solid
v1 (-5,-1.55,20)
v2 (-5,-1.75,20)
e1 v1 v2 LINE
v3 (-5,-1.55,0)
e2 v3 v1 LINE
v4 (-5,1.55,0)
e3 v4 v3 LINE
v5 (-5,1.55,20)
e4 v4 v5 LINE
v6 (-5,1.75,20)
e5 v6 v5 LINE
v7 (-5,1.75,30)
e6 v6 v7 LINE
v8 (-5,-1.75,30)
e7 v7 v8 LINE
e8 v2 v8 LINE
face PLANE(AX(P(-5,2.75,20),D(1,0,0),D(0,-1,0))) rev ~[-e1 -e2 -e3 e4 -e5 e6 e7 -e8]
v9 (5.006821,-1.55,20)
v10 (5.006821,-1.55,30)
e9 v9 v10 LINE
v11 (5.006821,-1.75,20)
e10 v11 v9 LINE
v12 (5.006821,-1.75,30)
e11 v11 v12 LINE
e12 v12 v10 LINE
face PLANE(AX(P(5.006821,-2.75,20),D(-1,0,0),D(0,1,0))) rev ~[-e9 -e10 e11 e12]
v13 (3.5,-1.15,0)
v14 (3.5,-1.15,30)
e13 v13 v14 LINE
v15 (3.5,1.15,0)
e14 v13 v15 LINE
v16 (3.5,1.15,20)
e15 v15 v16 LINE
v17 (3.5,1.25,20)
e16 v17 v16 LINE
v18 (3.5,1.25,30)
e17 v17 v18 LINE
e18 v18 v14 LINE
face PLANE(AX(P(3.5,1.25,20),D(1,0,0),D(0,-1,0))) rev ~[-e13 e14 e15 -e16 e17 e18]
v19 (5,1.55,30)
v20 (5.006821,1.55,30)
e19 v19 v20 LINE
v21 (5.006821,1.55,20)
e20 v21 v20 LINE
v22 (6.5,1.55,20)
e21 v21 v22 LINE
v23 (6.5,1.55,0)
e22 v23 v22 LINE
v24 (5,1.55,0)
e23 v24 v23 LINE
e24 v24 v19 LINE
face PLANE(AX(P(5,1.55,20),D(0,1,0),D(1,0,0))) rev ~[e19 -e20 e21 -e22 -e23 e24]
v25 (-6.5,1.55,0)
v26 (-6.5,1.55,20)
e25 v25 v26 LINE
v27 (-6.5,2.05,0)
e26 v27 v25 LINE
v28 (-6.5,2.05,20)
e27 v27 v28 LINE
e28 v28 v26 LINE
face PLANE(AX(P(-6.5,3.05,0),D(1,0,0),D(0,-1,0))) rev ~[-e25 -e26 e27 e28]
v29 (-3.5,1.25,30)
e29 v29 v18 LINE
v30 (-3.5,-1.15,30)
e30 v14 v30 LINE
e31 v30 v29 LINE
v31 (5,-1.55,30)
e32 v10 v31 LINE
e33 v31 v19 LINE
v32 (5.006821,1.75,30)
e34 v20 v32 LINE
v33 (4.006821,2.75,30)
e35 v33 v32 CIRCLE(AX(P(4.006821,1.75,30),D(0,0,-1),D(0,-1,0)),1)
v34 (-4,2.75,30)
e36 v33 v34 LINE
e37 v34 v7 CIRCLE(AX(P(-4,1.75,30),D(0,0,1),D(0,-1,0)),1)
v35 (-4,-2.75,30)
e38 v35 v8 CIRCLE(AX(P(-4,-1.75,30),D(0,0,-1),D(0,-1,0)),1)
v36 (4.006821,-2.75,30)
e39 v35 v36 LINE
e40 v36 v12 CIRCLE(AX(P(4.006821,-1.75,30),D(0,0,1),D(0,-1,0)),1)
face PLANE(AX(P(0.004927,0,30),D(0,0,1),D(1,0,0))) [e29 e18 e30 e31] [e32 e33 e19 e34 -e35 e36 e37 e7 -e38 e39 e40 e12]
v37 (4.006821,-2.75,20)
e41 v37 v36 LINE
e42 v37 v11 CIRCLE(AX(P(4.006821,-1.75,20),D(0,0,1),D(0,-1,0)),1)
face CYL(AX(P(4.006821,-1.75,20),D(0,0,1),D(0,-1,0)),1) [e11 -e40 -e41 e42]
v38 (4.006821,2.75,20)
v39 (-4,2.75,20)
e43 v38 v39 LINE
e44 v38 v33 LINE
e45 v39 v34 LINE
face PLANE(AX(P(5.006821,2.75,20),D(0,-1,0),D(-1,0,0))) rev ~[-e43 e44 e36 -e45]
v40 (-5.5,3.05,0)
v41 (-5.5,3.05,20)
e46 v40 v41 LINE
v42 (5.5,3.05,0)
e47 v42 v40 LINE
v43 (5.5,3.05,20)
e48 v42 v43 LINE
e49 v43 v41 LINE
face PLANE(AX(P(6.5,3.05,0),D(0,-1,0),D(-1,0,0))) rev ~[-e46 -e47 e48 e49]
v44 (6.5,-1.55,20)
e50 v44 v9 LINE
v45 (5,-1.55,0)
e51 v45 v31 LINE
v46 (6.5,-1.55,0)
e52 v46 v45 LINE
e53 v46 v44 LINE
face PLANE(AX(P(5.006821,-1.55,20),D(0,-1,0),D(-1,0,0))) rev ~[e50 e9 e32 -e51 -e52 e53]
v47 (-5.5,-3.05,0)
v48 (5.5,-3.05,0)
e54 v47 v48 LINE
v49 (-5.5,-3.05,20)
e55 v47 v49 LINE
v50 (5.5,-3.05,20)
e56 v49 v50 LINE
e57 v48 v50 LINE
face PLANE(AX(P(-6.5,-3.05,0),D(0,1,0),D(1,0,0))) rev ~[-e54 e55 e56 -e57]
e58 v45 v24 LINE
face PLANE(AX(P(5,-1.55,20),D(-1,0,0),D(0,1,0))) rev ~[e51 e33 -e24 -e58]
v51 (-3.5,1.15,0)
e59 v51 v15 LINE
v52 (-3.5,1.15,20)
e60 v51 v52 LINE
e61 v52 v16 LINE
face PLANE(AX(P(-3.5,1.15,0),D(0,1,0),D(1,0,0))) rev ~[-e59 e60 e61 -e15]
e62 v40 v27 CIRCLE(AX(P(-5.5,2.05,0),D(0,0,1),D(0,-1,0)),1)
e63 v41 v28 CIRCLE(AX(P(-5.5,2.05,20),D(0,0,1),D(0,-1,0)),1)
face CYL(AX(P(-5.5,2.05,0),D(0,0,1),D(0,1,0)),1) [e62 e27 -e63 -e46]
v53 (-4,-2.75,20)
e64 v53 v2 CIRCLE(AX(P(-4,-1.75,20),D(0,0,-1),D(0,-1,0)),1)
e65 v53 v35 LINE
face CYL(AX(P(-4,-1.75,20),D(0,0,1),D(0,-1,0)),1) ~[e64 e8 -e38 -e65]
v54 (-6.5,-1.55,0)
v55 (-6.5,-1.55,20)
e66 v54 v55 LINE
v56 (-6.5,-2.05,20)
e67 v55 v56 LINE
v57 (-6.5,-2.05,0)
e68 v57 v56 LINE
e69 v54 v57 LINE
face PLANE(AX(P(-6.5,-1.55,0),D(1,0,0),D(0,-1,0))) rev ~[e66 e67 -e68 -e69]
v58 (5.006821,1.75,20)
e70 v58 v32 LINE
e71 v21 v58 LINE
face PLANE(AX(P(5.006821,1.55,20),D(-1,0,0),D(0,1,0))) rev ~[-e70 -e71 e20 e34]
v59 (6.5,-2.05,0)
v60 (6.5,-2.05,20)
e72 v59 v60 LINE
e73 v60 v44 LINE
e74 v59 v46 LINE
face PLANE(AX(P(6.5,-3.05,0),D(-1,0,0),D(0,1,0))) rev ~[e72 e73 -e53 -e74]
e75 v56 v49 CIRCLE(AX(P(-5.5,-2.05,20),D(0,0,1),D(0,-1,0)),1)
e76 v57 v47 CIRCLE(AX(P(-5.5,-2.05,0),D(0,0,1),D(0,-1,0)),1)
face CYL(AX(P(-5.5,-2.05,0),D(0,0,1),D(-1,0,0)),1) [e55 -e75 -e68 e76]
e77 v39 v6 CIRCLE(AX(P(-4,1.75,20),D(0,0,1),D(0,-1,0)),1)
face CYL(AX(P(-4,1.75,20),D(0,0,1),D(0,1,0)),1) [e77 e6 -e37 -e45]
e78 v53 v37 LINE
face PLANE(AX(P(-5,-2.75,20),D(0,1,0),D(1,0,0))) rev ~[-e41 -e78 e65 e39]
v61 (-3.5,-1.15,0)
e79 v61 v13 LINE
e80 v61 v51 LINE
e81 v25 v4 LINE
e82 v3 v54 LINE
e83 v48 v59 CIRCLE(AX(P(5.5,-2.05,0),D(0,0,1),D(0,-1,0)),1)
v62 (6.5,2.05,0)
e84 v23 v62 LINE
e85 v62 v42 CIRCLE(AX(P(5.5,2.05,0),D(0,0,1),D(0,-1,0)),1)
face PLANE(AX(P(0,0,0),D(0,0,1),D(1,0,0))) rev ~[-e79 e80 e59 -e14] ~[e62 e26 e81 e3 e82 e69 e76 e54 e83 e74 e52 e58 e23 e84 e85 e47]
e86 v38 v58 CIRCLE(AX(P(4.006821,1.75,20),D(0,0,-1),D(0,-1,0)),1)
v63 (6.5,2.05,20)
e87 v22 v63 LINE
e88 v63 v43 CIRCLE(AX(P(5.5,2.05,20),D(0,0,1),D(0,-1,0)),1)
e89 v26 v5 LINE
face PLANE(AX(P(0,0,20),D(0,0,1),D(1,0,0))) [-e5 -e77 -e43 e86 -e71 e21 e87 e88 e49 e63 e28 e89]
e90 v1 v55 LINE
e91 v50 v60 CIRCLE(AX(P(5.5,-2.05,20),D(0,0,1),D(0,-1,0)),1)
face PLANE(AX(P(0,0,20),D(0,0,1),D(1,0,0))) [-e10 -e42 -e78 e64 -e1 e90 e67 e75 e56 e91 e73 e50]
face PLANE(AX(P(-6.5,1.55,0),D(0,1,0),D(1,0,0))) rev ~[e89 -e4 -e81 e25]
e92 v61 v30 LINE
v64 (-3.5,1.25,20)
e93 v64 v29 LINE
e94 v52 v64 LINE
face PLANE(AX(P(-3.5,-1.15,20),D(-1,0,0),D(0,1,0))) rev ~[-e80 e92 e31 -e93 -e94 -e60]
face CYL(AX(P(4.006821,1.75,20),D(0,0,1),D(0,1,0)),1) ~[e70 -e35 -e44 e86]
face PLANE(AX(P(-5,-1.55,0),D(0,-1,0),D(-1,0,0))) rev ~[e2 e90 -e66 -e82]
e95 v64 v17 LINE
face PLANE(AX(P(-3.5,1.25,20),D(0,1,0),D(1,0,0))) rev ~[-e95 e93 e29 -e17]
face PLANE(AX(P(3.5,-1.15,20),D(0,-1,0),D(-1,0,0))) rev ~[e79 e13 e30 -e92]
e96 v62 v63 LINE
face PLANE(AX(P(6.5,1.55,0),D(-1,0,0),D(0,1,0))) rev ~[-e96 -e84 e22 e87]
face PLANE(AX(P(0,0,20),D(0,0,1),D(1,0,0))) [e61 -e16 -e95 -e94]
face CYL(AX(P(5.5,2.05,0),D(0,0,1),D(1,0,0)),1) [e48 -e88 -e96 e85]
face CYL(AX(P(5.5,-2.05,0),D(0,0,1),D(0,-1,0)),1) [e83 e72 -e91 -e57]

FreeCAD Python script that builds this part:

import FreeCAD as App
import Part
import Sketcher


def edges_at(feature, points):
    """Names of the edges that pass closest to the given points."""
    edges = feature.Shape.Edges
    near = lambda p: min(range(len(edges)), key=lambda i: edges[i].distToShape(Part.Vertex(*p))[0])
    return sorted({f"Edge{near(p) + 1}" for p in points})

doc = App.newDocument("Part")
params = doc.addObject("Spreadsheet::Sheet", "Params")
for row, (alias, value) in enumerate([
    ("sketch1_width", "13 mm"),
    ("sketch1_width2", "7 mm"),
    ("sketch1_width3", "1.5 mm"),
    ("sketch1_height", "3.1 mm"),
    ("sketch1_height2", "2.3 mm"),
    ("pad1_length", "20 mm"),
    ("sketch2_width", "7 mm"),
    ("sketch2_height", "1.2 mm"),
    ("sketch2_height2", "3.1 mm"),
    ("sketch2_height3", "2.4 mm"),
    ("pad2_length", "10 mm"),
    ("fillet_radius", "1 mm"),
    ("fillet2_radius", "1 mm"),
], start=1):
    params.set(f"A{row}", alias)
    params.set(f"B{row}", "=" + value)
    params.setAlias(f"B{row}", alias)

body = doc.addObject("PartDesign::Body", "Body")

# Sketch on XY plane
sketch1 = doc.addObject("Sketcher::SketchObject", "Sketch")
body.addObject(sketch1)
sketch1.AttachmentSupport = (doc.XY_Plane, [""])
sketch1.MapMode = "FlatFace"
sketch1.addGeometry([
    Part.LineSegment(App.Vector(6.5, 3, 0), App.Vector(-6.5, 3, 0)),  # 0
    Part.LineSegment(App.Vector(-6.5, 3, 0), App.Vector(-6.5, 1.6, 0)),  # 1
    Part.LineSegment(App.Vector(-6.5, 1.6, 0), App.Vector(-5, 1.6, 0)),  # 2
    Part.LineSegment(App.Vector(-5, 1.6, 0), App.Vector(-5, -1.6, 0)),  # 3
    Part.LineSegment(App.Vector(-5, -1.6, 0), App.Vector(-6.5, -1.6, 0)),  # 4
    Part.LineSegment(App.Vector(-6.5, -1.6, 0), App.Vector(-6.5, -3, 0)),  # 5
    Part.LineSegment(App.Vector(-6.5, -3, 0), App.Vector(6.5, -3, 0)),  # 6
    Part.LineSegment(App.Vector(6.5, -3, 0), App.Vector(6.5, -1.6, 0)),  # 7
    Part.LineSegment(App.Vector(6.5, -1.6, 0), App.Vector(5, -1.6, 0)),  # 8
    Part.LineSegment(App.Vector(5, -1.6, 0), App.Vector(5, 1.6, 0)),  # 9
    Part.LineSegment(App.Vector(5, 1.6, 0), App.Vector(6.5, 1.6, 0)),  # 10
    Part.LineSegment(App.Vector(6.5, 1.6, 0), App.Vector(6.5, 3, 0)),  # 11
    Part.LineSegment(App.Vector(3.5, -1.1, 0), App.Vector(-3.5, -1.1, 0)),  # 12
    Part.LineSegment(App.Vector(-3.5, -1.1, 0), App.Vector(-3.5, 1.1, 0)),  # 13
    Part.LineSegment(App.Vector(-3.5, 1.1, 0), App.Vector(3.5, 1.1, 0)),  # 14
    Part.LineSegment(App.Vector(3.5, 1.1, 0), App.Vector(3.5, -1.1, 0)),  # 15
], False)
sketch1.addConstraint([
    Sketcher.Constraint("Coincident", 0, 2, 1, 1),
    Sketcher.Constraint("Coincident", 1, 2, 2, 1),
    Sketcher.Constraint("Coincident", 2, 2, 3, 1),
    Sketcher.Constraint("Coincident", 3, 2, 4, 1),
    Sketcher.Constraint("Coincident", 4, 2, 5, 1),
    Sketcher.Constraint("Coincident", 5, 2, 6, 1),
    Sketcher.Constraint("Coincident", 6, 2, 7, 1),
    Sketcher.Constraint("Coincident", 7, 2, 8, 1),
    Sketcher.Constraint("Coincident", 8, 2, 9, 1),
    Sketcher.Constraint("Coincident", 9, 2, 10, 1),
    Sketcher.Constraint("Coincident", 10, 2, 11, 1),
    Sketcher.Constraint("Coincident", 11, 2, 0, 1),
    Sketcher.Constraint("Coincident", 12, 2, 13, 1),
    Sketcher.Constraint("Coincident", 13, 2, 14, 1),
    Sketcher.Constraint("Coincident", 14, 2, 15, 1),
    Sketcher.Constraint("Coincident", 15, 2, 12, 1),
    Sketcher.Constraint("Horizontal", 0),
    Sketcher.Constraint("Vertical", 1),
    Sketcher.Constraint("Horizontal", 2),
    Sketcher.Constraint("Vertical", 3),
    Sketcher.Constraint("Horizontal", 4),
    Sketcher.Constraint("Vertical", 5),
    Sketcher.Constraint("Horizontal", 6),
    Sketcher.Constraint("Vertical", 7),
    Sketcher.Constraint("Horizontal", 8),
    Sketcher.Constraint("Vertical", 9),
    Sketcher.Constraint("Horizontal", 10),
    Sketcher.Constraint("Vertical", 11),
    Sketcher.Constraint("Horizontal", 12),
    Sketcher.Constraint("Vertical", 13),
    Sketcher.Constraint("Horizontal", 14),
    Sketcher.Constraint("Vertical", 15),
    Sketcher.Constraint("Symmetric", 0, 2, 6, 2, -1, 1),
    Sketcher.Constraint("Symmetric", 2, 2, 8, 2, -1, 1),
    Sketcher.Constraint("Symmetric", 4, 2, 10, 2, -1, 1),
    Sketcher.Constraint("Symmetric", 12, 2, 14, 2, -1, 1),
    Sketcher.Constraint("Symmetric", 4, 2, 7, 2, -2),
    Sketcher.Constraint("Equal", 10, 1),
    Sketcher.Constraint("DistanceX", 0, 2, 0, 1, 13.0),
    Sketcher.Constraint("DistanceX", 12, 2, 12, 1, 7.0),
    Sketcher.Constraint("DistanceX", 2, 1, 2, 2, 1.5),
    Sketcher.Constraint("DistanceY", 3, 2, 3, 1, 3.1),
    Sketcher.Constraint("DistanceY", 13, 1, 13, 2, 2.3),
])
sketch1.setExpression("Constraints[38]", "Params.sketch1_width")
sketch1.setExpression("Constraints[39]", "Params.sketch1_width2")
sketch1.setExpression("Constraints[40]", "Params.sketch1_width3")
sketch1.setExpression("Constraints[41]", "Params.sketch1_height")
sketch1.setExpression("Constraints[42]", "Params.sketch1_height2")
pad1 = doc.addObject("PartDesign::Pad", "Pad")
body.addObject(pad1)
pad1.Profile = sketch1
pad1.setExpression("Length", "Params.pad1_length")

# Sketch on XY plane
sketch2 = doc.addObject("Sketcher::SketchObject", "Sketch001")
body.addObject(sketch2)
sketch2.AttachmentSupport = (doc.XY_Plane, [""])
sketch2.MapMode = "FlatFace"
sketch2.AttachmentOffset = App.Placement(App.Vector(0, 0, 20), App.Rotation())
sketch2.addGeometry([
    Part.LineSegment(App.Vector(-5, -2.75, 0), App.Vector(5.007, -2.75, 0)),  # 0
    Part.LineSegment(App.Vector(5.007, -2.75, 0), App.Vector(5.007, -1.55, 0)),  # 1
    Part.LineSegment(App.Vector(5.007, -1.55, 0), App.Vector(5, -1.55, 0)),  # 2
    Part.LineSegment(App.Vector(5, -1.55, 0), App.Vector(5, 1.55, 0)),  # 3
    Part.LineSegment(App.Vector(5, 1.55, 0), App.Vector(5.007, 1.55, 0)),  # 4
    Part.LineSegment(App.Vector(5.007, 1.55, 0), App.Vector(5.007, 2.75, 0)),  # 5
    Part.LineSegment(App.Vector(5.007, 2.75, 0), App.Vector(-5, 2.75, 0)),  # 6
    Part.LineSegment(App.Vector(-5, 2.75, 0), App.Vector(-5, -2.75, 0)),  # 7
    Part.LineSegment(App.Vector(3.5, 1.25, 0), App.Vector(3.5, -1.15, 0)),  # 8
    Part.LineSegment(App.Vector(3.5, -1.15, 0), App.Vector(-3.5, -1.15, 0)),  # 9
    Part.LineSegment(App.Vector(-3.5, -1.15, 0), App.Vector(-3.5, 1.25, 0)),  # 10
    Part.LineSegment(App.Vector(-3.5, 1.25, 0), App.Vector(3.5, 1.25, 0)),  # 11
], False)
sketch2.addConstraint([
    Sketcher.Constraint("Coincident", 0, 2, 1, 1),
    Sketcher.Constraint("Coincident", 1, 2, 2, 1),
    Sketcher.Constraint("Coincident", 2, 2, 3, 1),
    Sketcher.Constraint("Coincident", 3, 2, 4, 1),
    Sketcher.Constraint("Coincident", 4, 2, 5, 1),
    Sketcher.Constraint("Coincident", 5, 2, 6, 1),
    Sketcher.Constraint("Coincident", 6, 2, 7, 1),
    Sketcher.Constraint("Coincident", 7, 2, 0, 1),
    Sketcher.Constraint("Coincident", 8, 2, 9, 1),
    Sketcher.Constraint("Coincident", 9, 2, 10, 1),
    Sketcher.Constraint("Coincident", 10, 2, 11, 1),
    Sketcher.Constraint("Coincident", 11, 2, 8, 1),
    Sketcher.Constraint("Horizontal", 0),
    Sketcher.Constraint("Vertical", 1),
    Sketcher.Constraint("Horizontal", 2),
    Sketcher.Constraint("Vertical", 3),
    Sketcher.Constraint("Horizontal", 4),
    Sketcher.Constraint("Vertical", 5),
    Sketcher.Constraint("Horizontal", 6),
    Sketcher.Constraint("Vertical", 7),
    Sketcher.Constraint("Vertical", 8),
    Sketcher.Constraint("Horizontal", 9),
    Sketcher.Constraint("Vertical", 10),
    Sketcher.Constraint("Horizontal", 11),
    Sketcher.Constraint("Symmetric", 1, 2, 4, 2, -1),
    Sketcher.Constraint("Equal", 1, 5),
    Sketcher.Constraint("DistanceX", 9, 2, 9, 1, 7.0),
    Sketcher.Constraint("DistanceY", 1, 1, 1, 2, 1.2),
    Sketcher.Constraint("DistanceY", 3, 1, 3, 2, 3.1),
    Sketcher.Constraint("DistanceY", 8, 2, 8, 1, 2.4),
    Sketcher.Constraint("DistanceX", -1, 1, 2, 2, 5.0),
    Sketcher.Constraint("DistanceX", 6, 2, -1, 1, 5.0),
    Sketcher.Constraint("DistanceY", 7, 2, 10, 2, 4.0),
    Sketcher.Constraint("DistanceX", -1, 1, 8, 2, 3.5),
    Sketcher.Constraint("DistanceX", 0, 1, 0, 2, 10.006821),
])
sketch2.setExpression("Constraints[26]", "Params.sketch2_width")
sketch2.setExpression("Constraints[27]", "Params.sketch2_height")
sketch2.setExpression("Constraints[28]", "Params.sketch2_height2")
sketch2.setExpression("Constraints[29]", "Params.sketch2_height3")
pad2 = doc.addObject("PartDesign::Pad", "Pad001")
body.addObject(pad2)
pad2.Profile = sketch2
pad2.setExpression("Length", "Params.pad2_length")
doc.recompute()

fillet = doc.addObject("PartDesign::Fillet", "Fillet")
body.addObject(fillet)
fillet.Base = (pad2, edges_at(pad2, [
    (-5, 2.75, 25),
    (-5, -2.75, 25),
    (5.007, 2.75, 25),
    (5.007, -2.75, 25),
]))
fillet.setExpression("Radius", "Params.fillet_radius")
doc.recompute()

fillet2 = doc.addObject("PartDesign::Fillet", "Fillet001")
body.addObject(fillet2)
fillet2.Base = (fillet, edges_at(fillet, [
    (-6.5, 3.05, 10),
    (-6.5, -3.05, 10),
    (6.5, 3.05, 10),
    (6.5, -3.05, 10),
]))
fillet2.setExpression("Radius", "Params.fillet2_radius")

doc.recompute()
